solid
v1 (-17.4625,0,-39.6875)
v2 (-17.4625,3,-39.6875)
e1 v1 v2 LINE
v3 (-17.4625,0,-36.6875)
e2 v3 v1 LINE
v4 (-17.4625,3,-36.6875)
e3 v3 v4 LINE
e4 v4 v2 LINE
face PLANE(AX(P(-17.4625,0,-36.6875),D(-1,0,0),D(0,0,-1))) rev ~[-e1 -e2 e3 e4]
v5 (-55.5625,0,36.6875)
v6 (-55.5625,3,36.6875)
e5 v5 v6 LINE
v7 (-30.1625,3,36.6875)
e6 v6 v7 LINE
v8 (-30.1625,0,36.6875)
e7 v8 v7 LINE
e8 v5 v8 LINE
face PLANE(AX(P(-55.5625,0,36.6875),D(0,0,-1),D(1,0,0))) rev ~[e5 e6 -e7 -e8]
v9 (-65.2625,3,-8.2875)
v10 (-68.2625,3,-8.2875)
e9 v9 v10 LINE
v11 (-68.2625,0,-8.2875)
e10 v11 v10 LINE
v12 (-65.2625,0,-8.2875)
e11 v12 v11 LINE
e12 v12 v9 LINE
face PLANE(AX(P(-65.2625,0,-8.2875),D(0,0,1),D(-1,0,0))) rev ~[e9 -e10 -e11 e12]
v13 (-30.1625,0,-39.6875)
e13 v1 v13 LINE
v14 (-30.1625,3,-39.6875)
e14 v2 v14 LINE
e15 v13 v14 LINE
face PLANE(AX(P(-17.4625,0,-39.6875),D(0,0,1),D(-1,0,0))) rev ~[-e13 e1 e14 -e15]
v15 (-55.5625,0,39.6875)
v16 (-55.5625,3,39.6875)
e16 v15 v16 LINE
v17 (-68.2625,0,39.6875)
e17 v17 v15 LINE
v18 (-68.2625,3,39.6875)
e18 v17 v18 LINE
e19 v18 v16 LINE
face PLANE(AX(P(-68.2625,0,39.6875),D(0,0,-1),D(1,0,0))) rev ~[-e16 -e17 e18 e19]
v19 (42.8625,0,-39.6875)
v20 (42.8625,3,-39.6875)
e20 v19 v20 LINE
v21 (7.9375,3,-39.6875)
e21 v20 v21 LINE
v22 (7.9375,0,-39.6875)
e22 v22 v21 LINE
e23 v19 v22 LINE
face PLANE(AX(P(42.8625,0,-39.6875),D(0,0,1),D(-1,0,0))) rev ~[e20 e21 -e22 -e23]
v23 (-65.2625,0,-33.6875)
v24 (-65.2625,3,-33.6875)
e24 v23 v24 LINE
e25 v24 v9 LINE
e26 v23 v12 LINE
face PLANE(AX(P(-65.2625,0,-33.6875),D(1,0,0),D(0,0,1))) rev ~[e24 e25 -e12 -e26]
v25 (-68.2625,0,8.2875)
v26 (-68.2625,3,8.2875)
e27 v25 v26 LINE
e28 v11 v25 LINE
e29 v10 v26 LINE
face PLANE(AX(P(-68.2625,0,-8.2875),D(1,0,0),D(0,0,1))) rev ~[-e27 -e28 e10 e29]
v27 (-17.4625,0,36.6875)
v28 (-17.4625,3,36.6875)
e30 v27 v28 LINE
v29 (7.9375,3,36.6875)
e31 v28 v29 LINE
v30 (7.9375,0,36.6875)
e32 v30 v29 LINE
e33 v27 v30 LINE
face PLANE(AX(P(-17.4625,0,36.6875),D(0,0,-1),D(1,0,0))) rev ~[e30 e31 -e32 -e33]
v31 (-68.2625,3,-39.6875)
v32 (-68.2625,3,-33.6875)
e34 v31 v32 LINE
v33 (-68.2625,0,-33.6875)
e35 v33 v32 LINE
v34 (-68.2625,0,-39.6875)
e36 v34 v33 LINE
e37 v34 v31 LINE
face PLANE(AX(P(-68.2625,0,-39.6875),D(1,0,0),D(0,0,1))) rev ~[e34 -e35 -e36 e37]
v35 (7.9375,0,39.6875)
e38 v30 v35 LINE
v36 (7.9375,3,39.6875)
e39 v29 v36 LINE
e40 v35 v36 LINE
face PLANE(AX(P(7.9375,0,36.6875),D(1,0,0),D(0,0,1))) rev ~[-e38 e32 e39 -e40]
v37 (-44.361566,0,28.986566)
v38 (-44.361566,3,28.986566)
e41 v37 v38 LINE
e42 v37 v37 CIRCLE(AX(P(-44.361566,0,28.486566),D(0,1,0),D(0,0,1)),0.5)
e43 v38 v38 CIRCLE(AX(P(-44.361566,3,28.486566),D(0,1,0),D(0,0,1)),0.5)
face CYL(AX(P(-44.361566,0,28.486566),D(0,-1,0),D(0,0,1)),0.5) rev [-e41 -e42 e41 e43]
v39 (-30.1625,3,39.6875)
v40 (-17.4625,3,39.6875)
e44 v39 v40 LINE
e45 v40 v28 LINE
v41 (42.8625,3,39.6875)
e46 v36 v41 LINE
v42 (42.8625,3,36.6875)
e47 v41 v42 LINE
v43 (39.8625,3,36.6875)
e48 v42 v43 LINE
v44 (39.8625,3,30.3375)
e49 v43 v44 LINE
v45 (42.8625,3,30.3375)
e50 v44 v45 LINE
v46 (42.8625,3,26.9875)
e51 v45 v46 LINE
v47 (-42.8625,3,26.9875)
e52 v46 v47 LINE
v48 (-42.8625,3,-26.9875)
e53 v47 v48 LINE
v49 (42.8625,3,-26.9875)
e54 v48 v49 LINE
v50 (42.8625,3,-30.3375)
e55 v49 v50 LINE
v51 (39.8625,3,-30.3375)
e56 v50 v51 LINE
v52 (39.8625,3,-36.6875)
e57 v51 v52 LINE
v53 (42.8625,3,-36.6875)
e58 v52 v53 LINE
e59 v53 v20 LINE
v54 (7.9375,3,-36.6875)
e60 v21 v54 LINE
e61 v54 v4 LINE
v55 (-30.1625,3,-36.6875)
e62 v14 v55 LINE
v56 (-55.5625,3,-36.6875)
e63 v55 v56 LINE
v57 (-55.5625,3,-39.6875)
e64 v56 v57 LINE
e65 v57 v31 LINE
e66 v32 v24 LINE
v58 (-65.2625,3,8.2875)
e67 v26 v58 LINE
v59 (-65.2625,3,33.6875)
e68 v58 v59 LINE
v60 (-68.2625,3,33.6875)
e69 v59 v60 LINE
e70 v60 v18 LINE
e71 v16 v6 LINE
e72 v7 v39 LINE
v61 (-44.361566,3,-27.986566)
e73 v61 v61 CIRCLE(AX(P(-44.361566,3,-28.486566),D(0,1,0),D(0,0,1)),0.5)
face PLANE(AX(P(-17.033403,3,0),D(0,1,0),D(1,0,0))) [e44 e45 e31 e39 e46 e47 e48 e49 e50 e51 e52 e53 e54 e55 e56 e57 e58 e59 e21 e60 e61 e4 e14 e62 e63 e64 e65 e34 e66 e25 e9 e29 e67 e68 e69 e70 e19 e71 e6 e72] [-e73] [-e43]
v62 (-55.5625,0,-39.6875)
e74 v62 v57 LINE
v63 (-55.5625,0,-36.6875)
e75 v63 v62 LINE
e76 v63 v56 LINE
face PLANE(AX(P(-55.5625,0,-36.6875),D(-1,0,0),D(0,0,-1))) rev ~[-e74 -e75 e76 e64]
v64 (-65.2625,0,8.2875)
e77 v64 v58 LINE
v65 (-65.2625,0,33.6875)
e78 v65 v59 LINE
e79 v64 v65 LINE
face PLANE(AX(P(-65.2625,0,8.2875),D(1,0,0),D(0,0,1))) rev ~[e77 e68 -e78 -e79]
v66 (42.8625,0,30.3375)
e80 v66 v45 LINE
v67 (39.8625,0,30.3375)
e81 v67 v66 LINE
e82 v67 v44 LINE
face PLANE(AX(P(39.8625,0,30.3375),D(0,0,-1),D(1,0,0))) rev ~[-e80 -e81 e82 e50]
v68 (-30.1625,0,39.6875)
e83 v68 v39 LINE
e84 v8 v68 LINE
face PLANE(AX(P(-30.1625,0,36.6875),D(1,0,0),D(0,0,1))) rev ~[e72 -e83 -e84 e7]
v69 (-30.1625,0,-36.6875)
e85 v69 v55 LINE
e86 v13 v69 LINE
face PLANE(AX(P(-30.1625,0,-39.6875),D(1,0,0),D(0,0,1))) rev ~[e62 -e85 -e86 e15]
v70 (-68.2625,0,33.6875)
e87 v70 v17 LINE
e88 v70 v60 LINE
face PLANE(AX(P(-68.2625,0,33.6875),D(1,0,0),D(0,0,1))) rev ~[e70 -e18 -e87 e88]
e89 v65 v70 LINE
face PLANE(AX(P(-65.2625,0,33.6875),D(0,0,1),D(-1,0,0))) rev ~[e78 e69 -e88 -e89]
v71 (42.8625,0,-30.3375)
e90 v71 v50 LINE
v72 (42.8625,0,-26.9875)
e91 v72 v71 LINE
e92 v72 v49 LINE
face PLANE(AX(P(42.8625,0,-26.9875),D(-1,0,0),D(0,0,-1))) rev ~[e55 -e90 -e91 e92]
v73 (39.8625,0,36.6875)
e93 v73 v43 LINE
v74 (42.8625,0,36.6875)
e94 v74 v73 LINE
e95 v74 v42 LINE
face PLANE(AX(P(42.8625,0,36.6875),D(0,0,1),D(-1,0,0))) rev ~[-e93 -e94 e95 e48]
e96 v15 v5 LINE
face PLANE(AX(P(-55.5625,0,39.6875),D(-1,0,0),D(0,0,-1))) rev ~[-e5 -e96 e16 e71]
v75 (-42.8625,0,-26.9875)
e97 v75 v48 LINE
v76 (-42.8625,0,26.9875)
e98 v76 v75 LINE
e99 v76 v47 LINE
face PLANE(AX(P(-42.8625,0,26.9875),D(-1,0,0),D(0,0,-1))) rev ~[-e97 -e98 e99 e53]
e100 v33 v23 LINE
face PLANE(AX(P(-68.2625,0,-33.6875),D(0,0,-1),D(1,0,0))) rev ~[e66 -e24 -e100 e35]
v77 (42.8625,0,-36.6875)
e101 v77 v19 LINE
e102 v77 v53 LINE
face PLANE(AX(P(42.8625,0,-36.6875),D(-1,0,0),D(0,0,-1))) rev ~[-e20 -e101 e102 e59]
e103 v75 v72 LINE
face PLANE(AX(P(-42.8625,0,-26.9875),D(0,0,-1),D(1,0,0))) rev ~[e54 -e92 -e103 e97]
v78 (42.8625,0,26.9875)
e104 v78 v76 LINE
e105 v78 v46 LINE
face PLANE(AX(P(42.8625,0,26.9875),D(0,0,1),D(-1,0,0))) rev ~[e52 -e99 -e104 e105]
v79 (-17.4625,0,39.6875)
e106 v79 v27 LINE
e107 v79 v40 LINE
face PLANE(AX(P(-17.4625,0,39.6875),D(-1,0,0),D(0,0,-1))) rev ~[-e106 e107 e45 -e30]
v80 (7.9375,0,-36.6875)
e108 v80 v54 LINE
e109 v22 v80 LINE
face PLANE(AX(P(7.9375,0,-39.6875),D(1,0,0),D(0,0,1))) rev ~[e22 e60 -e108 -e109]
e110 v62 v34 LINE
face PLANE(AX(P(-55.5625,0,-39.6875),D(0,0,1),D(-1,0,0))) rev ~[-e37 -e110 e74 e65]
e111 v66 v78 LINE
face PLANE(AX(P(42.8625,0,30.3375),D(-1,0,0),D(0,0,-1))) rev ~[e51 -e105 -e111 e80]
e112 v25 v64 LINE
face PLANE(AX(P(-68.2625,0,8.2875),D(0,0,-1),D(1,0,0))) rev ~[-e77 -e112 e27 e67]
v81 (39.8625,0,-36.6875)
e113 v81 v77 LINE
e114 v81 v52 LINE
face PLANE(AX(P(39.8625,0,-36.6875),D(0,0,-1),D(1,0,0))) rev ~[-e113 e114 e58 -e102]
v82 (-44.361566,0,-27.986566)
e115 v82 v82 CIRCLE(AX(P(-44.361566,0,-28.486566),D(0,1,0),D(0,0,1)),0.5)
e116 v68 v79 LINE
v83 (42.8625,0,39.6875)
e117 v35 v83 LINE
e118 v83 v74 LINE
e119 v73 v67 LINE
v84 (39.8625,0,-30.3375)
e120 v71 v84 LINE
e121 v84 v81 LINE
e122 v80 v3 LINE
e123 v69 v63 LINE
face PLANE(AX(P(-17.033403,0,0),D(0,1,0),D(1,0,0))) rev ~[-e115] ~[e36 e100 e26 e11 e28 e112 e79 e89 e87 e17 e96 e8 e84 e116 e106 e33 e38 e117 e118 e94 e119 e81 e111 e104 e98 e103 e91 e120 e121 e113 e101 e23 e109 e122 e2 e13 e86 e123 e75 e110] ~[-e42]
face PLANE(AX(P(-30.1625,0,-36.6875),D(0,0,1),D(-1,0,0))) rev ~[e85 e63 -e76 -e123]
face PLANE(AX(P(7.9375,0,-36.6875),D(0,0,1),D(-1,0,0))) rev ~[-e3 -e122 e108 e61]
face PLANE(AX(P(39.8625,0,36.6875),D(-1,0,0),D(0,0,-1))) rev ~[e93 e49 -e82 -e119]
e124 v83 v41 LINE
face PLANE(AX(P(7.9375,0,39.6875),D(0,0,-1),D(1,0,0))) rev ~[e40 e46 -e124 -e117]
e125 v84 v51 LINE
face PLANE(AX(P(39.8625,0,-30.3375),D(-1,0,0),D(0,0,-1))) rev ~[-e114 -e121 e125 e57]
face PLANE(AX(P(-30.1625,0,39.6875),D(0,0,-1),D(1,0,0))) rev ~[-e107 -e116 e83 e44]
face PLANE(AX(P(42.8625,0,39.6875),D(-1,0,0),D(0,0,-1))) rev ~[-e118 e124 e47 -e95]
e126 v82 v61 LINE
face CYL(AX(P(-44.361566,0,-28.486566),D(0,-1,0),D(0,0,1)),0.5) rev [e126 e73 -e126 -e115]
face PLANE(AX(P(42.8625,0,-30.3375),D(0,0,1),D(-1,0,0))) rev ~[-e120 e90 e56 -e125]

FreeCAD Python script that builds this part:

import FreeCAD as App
import Part
import Sketcher
Q = App.Units.Quantity


def add_polygon(sketch, points):
    """Adds a closed chain of lines whose ends are joined by coincident constraints."""
    first, n = sketch.GeometryCount, len(points)
    for a, b in zip(points, points[1:] + points[:1]):
        sketch.addGeometry(Part.LineSegment(App.Vector(*a, 0), App.Vector(*b, 0)), False)
    for i in range(n):
        sketch.addConstraint(Sketcher.Constraint("Coincident", first + i, 2, first + (i + 1) % n, 1))

doc = App.newDocument("Part")
body = doc.addObject("PartDesign::Body", "Body")

# Sketch on XZ plane
sketch1 = body.newObject("Sketcher::SketchObject", "Sketch")
sketch1.AttachmentSupport = (doc.getObject("XZ_Plane"), [""])
sketch1.MapMode = "FlatFace"
add_polygon(sketch1, [(42.9, -27), (42.9, -30.3), (39.9, -30.3), (39.9, -36.7), (42.9, -36.7), (42.9, -39.7), (7.9, -39.7), (7.9, -36.7), (-17.5, -36.7), (-17.5, -39.7), (-30.2, -39.7), (-30.2, -36.7), (-55.6, -36.7), (-55.6, -39.7), (-68.3, -39.7), (-68.3, -33.7), (-65.3, -33.7), (-65.3, -8.3), (-68.3, -8.3), (-68.3, 8.3), (-65.3, 8.3), (-65.3, 33.7), (-68.3, 33.7), (-68.3, 39.7), (-55.6, 39.7), (-55.6, 36.7), (-30.2, 36.7), (-30.2, 39.7), (-17.5, 39.7), (-17.5, 36.7), (7.9, 36.7), (7.9, 39.7), (42.9, 39.7), (42.9, 36.7), (39.9, 36.7), (39.9, 30.3), (42.9, 30.3), (42.9, 27), (-42.9, 27), (-42.9, -27)])  # lines 0-39
sketch1.addGeometry(Part.Circle(App.Vector(-44.4, 28.5, 0), App.Vector(0, 0, 1), 0.5), False)  # 40
sketch1.addGeometry(Part.Circle(App.Vector(-44.4, -28.5, 0), App.Vector(0, 0, 1), 0.5), False)  # 41
sketch1.addConstraint([
    Sketcher.Constraint("Vertical", 0),
    Sketcher.Constraint("Horizontal", 1),
    Sketcher.Constraint("Vertical", 2),
    Sketcher.Constraint("Horizontal", 3),
    Sketcher.Constraint("Vertical", 4),
    Sketcher.Constraint("Horizontal", 5),
    Sketcher.Constraint("Vertical", 6),
    Sketcher.Constraint("Horizontal", 7),
    Sketcher.Constraint("Vertical", 8),
    Sketcher.Constraint("Horizontal", 9),
    Sketcher.Constraint("Vertical", 10),
    Sketcher.Constraint("Horizontal", 11),
    Sketcher.Constraint("Vertical", 12),
    Sketcher.Constraint("Horizontal", 13),
    Sketcher.Constraint("Vertical", 14),
    Sketcher.Constraint("Horizontal", 15),
    Sketcher.Constraint("Vertical", 16),
    Sketcher.Constraint("Horizontal", 17),
    Sketcher.Constraint("Vertical", 18),
    Sketcher.Constraint("Horizontal", 19),
    Sketcher.Constraint("Vertical", 20),
    Sketcher.Constraint("Horizontal", 21),
    Sketcher.Constraint("Vertical", 22),
    Sketcher.Constraint("Horizontal", 23),
    Sketcher.Constraint("Vertical", 24),
    Sketcher.Constraint("Horizontal", 25),
    Sketcher.Constraint("Vertical", 26),
    Sketcher.Constraint("Horizontal", 27),
    Sketcher.Constraint("Vertical", 28),
    Sketcher.Constraint("Horizontal", 29),
    Sketcher.Constraint("Vertical", 30),
    Sketcher.Constraint("Horizontal", 31),
    Sketcher.Constraint("Vertical", 32),
    Sketcher.Constraint("Horizontal", 33),
    Sketcher.Constraint("Vertical", 34),
    Sketcher.Constraint("Horizontal", 35),
    Sketcher.Constraint("Vertical", 36),
    Sketcher.Constraint("Horizontal", 37),
    Sketcher.Constraint("Vertical", 38),
    Sketcher.Constraint("Horizontal", 39),
    Sketcher.Constraint("Equal", 40, 41),
    Sketcher.Constraint("Symmetric", 36, 2, 38, 2, -1, 1),
    Sketcher.Constraint("Symmetric", 40, 3, 41, 3, -1),
    Sketcher.Constraint("Symmetric", 16, 2, 19, 2, -1),
    Sketcher.Constraint("Symmetric", 14, 2, 21, 2, -1),
    Sketcher.Constraint("Symmetric", 12, 2, 23, 2, -1),
    Sketcher.Constraint("Symmetric", 10, 2, 25, 2, -1),
    Sketcher.Constraint("Symmetric", 8, 2, 27, 2, -1),
    Sketcher.Constraint("Symmetric", 6, 2, 29, 2, -1),
    Sketcher.Constraint("Symmetric", 4, 2, 31, 2, -1),
    Sketcher.Constraint("Symmetric", 2, 2, 33, 2, -1),
    Sketcher.Constraint("Symmetric", 0, 2, 35, 2, -1),
    Sketcher.Constraint("Horizontal", 3, 2, 6, 2),
    Sketcher.Constraint("Horizontal", 5, 2, 8, 2),
    Sketcher.Constraint("Horizontal", 7, 2, 10, 2),
    Sketcher.Constraint("Horizontal", 9, 2, 12, 2),
    Sketcher.Constraint("Vertical", 0, 2, 3, 2),
    Sketcher.Constraint("Vertical", 14, 2, 17, 2),
    Sketcher.Constraint("Equal", 7, 11),
    Sketcher.Constraint("Equal", 9, 13),
    Sketcher.Constraint("Equal", 3, 15),
    Sketcher.Constraint("Equal", 35, 4),
    Sketcher.Constraint("Equal", 29, 16),
    Sketcher.Constraint("DistanceX", 7, 2, 7, 1, Q("1 in")),
    Sketcher.Constraint("DistanceX", 9, 2, 9, 1, Q("0.5 in")),
    Sketcher.Constraint("DistanceY", 2, 2, 2, 1, Q("0.25 in")),
    Sketcher.Constraint("DistanceY", 36, 2, 31, 2, Q("0.5 in")),
    Sketcher.Constraint("DistanceX", 37, 2, 25, 2, Q("0.5 in")),
    Sketcher.Constraint("Diameter", 40, 1.0),
    Sketcher.Constraint("DistanceX", 5, 2, 5, 1, Q("1.375 in")),
    Sketcher.Constraint("DistanceY", 38, 2, 38, 1, Q("2.125 in")),
    Sketcher.Constraint("DistanceX", 1, 2, 1, 1, 3.0),
    Sketcher.Constraint("DistanceY", 14, 1, 14, 2, 6.0),
    Sketcher.Constraint("DistanceX", 40, 3, -1, 1, 44.361566),
    Sketcher.Constraint("DistanceY", -1, 1, 40, 3, 28.486566),
])
pad1 = body.newObject("PartDesign::Pad", "Pad")
pad1.Profile = sketch1
pad1.Length = 3
pad1.Reversed = True

doc.recompute()
